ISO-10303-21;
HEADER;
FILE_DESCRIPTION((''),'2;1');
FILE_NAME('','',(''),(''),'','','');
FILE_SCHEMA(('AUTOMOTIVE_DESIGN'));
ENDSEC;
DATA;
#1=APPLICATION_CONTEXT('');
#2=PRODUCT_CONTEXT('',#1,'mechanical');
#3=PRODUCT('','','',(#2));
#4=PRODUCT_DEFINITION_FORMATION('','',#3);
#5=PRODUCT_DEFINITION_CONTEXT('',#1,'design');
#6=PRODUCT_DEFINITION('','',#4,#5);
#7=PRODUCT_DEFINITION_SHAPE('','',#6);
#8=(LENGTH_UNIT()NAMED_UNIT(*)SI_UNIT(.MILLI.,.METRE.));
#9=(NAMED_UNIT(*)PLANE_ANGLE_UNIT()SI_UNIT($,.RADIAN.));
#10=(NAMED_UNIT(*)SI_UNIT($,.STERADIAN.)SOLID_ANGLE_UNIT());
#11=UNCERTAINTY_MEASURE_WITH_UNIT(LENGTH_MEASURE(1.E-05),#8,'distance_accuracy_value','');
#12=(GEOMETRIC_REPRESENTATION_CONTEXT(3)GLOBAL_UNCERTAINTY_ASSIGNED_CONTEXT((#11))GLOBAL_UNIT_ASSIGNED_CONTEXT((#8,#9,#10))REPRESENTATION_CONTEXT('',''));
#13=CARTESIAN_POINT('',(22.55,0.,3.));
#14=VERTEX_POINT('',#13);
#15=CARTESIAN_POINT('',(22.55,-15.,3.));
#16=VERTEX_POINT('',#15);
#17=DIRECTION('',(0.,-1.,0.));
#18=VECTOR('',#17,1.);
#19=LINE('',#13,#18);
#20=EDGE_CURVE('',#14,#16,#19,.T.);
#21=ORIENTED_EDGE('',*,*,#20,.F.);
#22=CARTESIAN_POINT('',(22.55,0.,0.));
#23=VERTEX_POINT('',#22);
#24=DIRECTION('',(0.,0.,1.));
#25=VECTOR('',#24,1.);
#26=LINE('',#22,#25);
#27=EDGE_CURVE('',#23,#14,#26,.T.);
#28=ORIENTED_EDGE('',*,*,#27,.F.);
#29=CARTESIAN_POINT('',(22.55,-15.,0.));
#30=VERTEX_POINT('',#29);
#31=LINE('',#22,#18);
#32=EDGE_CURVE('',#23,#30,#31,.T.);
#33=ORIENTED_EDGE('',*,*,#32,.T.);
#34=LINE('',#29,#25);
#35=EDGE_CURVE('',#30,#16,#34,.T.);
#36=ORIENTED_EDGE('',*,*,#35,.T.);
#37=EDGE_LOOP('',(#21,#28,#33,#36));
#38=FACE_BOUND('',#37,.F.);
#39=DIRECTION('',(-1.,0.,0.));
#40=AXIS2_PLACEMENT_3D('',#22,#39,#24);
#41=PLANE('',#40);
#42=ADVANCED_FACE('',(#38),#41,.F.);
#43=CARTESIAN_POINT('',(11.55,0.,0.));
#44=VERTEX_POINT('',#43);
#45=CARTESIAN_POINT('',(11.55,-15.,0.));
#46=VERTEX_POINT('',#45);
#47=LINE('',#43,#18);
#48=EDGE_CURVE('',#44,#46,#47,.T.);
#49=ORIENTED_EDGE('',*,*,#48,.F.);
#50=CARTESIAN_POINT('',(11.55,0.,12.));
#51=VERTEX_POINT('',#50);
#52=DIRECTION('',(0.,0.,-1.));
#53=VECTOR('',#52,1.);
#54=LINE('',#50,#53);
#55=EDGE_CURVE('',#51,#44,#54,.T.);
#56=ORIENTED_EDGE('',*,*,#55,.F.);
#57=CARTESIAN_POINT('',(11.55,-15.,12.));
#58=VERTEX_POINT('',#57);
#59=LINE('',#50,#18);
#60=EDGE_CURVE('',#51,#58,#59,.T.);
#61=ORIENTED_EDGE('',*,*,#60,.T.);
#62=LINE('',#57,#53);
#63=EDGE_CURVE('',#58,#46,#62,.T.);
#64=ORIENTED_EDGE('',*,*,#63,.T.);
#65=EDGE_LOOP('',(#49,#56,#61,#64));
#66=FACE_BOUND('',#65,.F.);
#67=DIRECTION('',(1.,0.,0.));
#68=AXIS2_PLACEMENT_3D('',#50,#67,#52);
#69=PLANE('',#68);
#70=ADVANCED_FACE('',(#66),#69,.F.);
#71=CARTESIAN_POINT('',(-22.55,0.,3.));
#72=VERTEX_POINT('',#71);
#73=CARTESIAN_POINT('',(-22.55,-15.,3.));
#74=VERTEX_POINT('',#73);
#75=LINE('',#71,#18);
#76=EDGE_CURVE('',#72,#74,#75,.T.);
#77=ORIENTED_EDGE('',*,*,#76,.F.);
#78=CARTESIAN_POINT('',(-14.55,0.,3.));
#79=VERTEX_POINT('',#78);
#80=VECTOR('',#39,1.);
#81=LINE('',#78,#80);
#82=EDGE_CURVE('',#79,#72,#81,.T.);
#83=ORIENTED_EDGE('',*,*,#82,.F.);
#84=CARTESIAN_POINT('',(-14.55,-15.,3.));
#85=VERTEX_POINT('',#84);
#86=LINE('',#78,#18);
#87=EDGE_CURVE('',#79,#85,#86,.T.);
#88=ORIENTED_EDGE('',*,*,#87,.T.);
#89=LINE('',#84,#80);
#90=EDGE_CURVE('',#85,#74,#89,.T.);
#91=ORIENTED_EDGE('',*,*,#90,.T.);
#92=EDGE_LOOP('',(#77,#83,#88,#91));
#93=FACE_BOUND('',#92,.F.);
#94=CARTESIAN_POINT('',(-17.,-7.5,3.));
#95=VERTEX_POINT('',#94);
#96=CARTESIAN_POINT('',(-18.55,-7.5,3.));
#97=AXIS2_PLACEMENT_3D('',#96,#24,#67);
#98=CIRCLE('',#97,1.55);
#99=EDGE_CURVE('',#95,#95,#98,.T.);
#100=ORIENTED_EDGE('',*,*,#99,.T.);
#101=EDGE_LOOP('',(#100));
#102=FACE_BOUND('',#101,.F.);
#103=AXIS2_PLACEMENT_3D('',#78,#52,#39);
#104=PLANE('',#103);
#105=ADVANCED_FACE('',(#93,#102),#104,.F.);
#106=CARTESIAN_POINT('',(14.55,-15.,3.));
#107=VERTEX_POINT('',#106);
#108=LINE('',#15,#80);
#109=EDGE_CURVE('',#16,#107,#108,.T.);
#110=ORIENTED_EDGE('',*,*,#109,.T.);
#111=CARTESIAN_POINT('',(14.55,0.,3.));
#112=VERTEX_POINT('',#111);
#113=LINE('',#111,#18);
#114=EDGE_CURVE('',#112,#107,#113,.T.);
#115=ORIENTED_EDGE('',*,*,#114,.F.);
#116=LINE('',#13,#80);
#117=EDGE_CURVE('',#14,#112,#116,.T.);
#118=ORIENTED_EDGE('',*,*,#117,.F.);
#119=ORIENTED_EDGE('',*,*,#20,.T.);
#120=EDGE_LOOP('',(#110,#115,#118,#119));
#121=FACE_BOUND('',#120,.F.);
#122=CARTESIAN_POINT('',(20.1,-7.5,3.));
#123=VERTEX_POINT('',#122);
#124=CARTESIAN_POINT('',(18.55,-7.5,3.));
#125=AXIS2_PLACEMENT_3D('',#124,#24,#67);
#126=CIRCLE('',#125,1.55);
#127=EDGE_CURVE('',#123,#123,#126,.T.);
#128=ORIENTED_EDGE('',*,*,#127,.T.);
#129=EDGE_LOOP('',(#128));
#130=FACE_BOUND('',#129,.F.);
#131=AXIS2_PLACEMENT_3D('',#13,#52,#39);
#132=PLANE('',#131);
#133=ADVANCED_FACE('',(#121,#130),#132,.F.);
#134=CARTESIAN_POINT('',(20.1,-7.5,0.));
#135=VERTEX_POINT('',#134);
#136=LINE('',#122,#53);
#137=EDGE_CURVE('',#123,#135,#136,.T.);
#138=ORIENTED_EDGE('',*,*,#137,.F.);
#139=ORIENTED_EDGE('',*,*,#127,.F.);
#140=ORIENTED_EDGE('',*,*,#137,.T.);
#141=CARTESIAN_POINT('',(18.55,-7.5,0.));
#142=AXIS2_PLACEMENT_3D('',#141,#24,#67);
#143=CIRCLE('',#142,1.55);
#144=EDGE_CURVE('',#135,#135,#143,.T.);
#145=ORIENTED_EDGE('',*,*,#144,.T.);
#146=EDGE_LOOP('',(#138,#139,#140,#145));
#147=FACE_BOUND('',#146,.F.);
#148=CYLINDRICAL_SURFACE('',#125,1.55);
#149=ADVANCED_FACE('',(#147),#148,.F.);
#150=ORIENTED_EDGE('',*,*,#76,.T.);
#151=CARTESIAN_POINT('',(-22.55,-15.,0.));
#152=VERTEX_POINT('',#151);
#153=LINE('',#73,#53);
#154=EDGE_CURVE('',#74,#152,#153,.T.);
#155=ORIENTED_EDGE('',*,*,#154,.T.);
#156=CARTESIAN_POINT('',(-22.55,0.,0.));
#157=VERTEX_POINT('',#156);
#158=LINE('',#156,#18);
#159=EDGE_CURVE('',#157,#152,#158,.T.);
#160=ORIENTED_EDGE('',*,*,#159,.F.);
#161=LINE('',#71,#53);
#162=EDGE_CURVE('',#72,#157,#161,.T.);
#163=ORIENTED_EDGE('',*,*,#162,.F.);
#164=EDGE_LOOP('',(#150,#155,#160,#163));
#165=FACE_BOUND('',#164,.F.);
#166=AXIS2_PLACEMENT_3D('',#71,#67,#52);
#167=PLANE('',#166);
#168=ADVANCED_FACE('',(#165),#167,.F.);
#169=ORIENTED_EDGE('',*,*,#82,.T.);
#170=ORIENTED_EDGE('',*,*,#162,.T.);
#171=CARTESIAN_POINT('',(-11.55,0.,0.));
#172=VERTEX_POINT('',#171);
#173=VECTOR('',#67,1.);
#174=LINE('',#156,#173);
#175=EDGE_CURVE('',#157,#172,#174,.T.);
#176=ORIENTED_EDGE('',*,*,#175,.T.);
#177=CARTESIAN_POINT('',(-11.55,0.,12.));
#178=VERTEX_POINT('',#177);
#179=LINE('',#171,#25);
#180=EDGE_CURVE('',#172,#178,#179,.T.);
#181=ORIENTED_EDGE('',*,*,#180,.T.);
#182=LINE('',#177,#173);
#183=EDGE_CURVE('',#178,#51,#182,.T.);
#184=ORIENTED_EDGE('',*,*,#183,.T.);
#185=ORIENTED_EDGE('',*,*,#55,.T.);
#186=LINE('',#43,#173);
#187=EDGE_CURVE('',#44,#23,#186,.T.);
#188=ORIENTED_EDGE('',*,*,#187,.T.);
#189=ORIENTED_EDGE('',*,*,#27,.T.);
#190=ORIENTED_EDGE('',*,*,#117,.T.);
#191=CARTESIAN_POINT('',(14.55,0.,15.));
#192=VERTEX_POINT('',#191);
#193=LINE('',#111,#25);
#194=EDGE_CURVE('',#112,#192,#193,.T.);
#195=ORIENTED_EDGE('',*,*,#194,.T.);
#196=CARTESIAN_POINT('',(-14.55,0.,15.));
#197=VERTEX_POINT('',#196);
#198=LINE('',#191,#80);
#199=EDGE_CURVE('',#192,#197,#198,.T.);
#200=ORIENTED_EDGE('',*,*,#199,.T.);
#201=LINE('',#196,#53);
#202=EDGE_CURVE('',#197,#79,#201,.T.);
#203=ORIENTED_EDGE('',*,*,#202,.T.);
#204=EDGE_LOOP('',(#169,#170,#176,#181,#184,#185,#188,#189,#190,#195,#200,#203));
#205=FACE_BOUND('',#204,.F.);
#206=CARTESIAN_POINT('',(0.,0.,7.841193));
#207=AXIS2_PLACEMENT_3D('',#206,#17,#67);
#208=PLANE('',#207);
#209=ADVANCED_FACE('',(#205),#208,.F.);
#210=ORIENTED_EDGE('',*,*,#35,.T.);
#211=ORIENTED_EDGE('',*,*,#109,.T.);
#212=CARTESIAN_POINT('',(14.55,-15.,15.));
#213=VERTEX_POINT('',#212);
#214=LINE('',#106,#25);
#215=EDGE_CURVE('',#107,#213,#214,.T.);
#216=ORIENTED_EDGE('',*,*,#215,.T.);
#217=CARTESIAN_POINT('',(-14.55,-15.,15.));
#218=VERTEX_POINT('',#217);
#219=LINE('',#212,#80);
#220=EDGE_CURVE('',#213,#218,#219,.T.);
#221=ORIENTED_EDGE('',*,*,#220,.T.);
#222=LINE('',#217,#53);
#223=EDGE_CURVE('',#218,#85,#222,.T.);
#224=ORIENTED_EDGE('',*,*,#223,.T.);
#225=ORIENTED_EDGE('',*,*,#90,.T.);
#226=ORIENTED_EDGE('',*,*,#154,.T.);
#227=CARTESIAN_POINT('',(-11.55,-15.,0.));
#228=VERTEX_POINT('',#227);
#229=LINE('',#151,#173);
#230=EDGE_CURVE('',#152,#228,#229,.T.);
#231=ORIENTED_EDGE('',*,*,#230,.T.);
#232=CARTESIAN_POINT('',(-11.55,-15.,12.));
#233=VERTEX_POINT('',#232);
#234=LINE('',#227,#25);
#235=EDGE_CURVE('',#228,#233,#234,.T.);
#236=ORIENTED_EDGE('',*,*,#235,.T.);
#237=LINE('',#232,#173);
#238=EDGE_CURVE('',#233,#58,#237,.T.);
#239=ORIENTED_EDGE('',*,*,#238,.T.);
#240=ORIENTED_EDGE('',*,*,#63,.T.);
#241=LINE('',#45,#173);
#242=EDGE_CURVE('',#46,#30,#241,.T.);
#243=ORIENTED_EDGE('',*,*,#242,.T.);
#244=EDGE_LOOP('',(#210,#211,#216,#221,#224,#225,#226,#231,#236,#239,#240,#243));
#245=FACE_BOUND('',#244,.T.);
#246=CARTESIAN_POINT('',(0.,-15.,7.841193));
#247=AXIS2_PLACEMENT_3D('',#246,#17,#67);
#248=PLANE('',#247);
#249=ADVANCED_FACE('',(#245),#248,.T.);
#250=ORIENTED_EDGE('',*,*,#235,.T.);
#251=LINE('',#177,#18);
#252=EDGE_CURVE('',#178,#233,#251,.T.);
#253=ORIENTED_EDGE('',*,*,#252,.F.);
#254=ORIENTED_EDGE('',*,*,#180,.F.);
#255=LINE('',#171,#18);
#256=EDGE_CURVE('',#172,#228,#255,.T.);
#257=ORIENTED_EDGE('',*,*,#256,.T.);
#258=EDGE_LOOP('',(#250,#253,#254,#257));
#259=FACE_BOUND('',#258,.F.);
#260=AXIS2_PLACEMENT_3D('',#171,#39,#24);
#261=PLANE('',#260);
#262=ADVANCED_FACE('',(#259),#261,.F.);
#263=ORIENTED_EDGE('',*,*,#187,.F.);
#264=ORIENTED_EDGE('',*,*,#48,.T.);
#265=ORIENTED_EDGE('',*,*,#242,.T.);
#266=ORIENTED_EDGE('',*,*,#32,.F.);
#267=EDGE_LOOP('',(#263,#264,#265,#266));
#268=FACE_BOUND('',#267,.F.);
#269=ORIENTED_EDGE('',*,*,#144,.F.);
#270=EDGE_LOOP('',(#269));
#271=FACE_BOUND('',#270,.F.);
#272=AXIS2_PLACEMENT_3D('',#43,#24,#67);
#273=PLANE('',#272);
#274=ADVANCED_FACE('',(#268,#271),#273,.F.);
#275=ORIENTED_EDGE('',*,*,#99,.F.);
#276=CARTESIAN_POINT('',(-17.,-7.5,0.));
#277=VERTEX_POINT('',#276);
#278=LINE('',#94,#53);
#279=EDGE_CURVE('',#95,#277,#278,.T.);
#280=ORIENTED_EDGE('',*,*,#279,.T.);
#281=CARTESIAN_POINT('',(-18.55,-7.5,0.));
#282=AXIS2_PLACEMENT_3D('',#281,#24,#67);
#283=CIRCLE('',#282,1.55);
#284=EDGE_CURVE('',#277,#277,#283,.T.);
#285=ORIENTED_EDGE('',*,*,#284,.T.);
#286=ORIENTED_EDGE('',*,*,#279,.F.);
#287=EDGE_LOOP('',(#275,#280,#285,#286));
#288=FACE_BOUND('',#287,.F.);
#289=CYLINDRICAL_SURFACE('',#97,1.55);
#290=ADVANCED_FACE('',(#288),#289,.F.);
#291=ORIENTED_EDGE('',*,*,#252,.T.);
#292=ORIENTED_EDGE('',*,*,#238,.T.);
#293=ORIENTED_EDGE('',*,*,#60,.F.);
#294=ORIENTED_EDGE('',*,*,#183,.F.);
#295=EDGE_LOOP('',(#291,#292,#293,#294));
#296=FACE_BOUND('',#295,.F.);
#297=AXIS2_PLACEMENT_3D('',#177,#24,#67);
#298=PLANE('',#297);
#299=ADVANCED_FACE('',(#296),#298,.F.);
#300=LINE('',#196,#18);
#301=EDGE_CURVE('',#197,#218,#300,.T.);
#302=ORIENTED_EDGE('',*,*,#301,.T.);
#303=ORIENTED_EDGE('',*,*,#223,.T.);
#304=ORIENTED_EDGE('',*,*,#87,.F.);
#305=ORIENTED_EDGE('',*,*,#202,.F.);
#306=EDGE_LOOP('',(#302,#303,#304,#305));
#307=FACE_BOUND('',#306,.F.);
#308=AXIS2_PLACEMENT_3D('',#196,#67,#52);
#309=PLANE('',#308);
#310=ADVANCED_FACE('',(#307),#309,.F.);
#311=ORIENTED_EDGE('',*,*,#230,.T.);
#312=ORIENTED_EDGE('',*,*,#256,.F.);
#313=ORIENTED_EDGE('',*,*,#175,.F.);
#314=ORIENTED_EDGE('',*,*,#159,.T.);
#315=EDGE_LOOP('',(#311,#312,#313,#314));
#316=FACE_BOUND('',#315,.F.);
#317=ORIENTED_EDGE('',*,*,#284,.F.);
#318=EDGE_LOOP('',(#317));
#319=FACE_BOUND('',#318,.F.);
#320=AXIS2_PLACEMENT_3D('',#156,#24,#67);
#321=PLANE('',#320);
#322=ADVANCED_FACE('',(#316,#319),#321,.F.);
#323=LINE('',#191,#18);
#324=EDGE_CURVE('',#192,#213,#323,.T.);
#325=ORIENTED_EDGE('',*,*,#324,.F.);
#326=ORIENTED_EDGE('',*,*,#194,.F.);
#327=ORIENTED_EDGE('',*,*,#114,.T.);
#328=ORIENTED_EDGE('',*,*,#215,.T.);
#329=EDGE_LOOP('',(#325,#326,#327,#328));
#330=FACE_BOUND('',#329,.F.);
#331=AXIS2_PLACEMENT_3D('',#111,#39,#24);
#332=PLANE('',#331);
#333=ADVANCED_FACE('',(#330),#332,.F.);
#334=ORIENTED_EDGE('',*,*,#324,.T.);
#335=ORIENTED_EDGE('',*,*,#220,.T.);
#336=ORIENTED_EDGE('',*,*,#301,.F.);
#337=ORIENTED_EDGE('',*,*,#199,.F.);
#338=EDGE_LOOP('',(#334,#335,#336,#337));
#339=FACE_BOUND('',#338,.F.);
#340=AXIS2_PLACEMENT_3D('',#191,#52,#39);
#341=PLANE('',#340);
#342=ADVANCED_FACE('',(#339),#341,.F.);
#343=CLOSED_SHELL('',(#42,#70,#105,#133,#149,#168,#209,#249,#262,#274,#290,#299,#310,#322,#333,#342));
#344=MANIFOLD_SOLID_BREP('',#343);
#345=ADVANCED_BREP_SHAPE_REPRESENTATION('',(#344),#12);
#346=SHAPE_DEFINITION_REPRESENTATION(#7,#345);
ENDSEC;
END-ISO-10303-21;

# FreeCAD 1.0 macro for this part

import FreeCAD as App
import Part
import Sketcher
from FreeCAD import Vector
Q = App.Units.Quantity


def add_polygon(sketch, points):
    """Adds a closed chain of lines whose ends are joined by coincident constraints."""
    first, n = sketch.GeometryCount, len(points)
    for a, b in zip(points, points[1:] + points[:1]):
        sketch.addGeometry(Part.LineSegment(App.Vector(*a, 0), App.Vector(*b, 0)), False)
    for i in range(n):
        sketch.addConstraint(Sketcher.Constraint("Coincident", first + i, 2, first + (i + 1) % n, 1))

doc = App.newDocument("Part")
body = doc.addObject("PartDesign::Body", "Body")

sketch1 = body.newObject("Sketcher::SketchObject", "Sketch")
sketch1.AttachmentSupport = (doc.getObject("XZ_Plane"), [""])
sketch1.MapMode = "FlatFace"
add_polygon(sketch1, [(-11.6, 12), (11.6, 12), (11.6, 0), (22.6, 0), (22.6, 3), (14.6, 3), (14.6, 15), (-14.6, 15), (-14.6, 3), (-22.6, 3), (-22.6, 0), (-11.6, 0)])
sketch1.addConstraint([
    Sketcher.Constraint("Horizontal", 0),
    Sketcher.Constraint("Vertical", 1),
    Sketcher.Constraint("Horizontal", 2),
    Sketcher.Constraint("Vertical", 3),
    Sketcher.Constraint("Horizontal", 4),
    Sketcher.Constraint("Vertical", 5),
    Sketcher.Constraint("Horizontal", 6),
    Sketcher.Constraint("Vertical", 7),
    Sketcher.Constraint("Horizontal", 8),
    Sketcher.Constraint("Vertical", 9),
    Sketcher.Constraint("Horizontal", 10),
    Sketcher.Constraint("Vertical", 11),
    Sketcher.Constraint("Symmetric", 2, 2, 9, 2, -1, 1),
    Sketcher.Constraint("Symmetric", 4, 2, 7, 2, -2),
    Sketcher.Constraint("Symmetric", 1, 2, 10, 2, -2),
    Sketcher.Constraint("Equal", 1, 5),
    Sketcher.Constraint("DistanceX", 2, 1, 2, 2, Q("11 mm")),
    Sketcher.Constraint("DistanceX", 4, 2, 4, 1, Q("8 mm")),
    Sketcher.Constraint("DistanceY", 1, 2, 1, 1, Q("12 mm")),
    Sketcher.Constraint("DistanceY", 3, 1, 3, 2, Q("3 mm")),
    Sketcher.Constraint("DistanceX", 0, 1, 0, 2, Q("23.1 mm")),
])
pad1 = body.newObject("PartDesign::Pad", "Pad")
pad1.Profile = sketch1
pad1.Length = 15

sketch2 = body.newObject("Sketcher::SketchObject", "Sketch001")
sketch2.AttachmentSupport = (doc.getObject("XY_Plane"), [""])
sketch2.MapMode = "FlatFace"
sketch2.AttachmentOffset = App.Placement(Vector(0, 0, 3), App.Rotation())
sketch2.addGeometry([
    Part.Circle(Vector(-18.6, -7.5, 0), Vector(0, 0, 1), 1.6),
    Part.Circle(Vector(18.6, -7.5, 0), Vector(0, 0, 1), 1.6),
], False)
sketch2.addConstraint([
    Sketcher.Constraint("Equal", 0, 1),
    Sketcher.Constraint("Symmetric", 0, 3, 1, 3, -2),
    Sketcher.Constraint("Diameter", 0, Q("3.1 mm")),
    Sketcher.Constraint("DistanceY", 0, 3, -1, 1, Q("7.5 mm")),
    Sketcher.Constraint("DistanceX", 0, 3, 1, 3, Q("37.1 mm")),
])
pocket1 = body.newObject("PartDesign::Pocket", "Pocket")
pocket1.Profile = sketch2
pocket1.Type = "ThroughAll"

doc.recompute()
